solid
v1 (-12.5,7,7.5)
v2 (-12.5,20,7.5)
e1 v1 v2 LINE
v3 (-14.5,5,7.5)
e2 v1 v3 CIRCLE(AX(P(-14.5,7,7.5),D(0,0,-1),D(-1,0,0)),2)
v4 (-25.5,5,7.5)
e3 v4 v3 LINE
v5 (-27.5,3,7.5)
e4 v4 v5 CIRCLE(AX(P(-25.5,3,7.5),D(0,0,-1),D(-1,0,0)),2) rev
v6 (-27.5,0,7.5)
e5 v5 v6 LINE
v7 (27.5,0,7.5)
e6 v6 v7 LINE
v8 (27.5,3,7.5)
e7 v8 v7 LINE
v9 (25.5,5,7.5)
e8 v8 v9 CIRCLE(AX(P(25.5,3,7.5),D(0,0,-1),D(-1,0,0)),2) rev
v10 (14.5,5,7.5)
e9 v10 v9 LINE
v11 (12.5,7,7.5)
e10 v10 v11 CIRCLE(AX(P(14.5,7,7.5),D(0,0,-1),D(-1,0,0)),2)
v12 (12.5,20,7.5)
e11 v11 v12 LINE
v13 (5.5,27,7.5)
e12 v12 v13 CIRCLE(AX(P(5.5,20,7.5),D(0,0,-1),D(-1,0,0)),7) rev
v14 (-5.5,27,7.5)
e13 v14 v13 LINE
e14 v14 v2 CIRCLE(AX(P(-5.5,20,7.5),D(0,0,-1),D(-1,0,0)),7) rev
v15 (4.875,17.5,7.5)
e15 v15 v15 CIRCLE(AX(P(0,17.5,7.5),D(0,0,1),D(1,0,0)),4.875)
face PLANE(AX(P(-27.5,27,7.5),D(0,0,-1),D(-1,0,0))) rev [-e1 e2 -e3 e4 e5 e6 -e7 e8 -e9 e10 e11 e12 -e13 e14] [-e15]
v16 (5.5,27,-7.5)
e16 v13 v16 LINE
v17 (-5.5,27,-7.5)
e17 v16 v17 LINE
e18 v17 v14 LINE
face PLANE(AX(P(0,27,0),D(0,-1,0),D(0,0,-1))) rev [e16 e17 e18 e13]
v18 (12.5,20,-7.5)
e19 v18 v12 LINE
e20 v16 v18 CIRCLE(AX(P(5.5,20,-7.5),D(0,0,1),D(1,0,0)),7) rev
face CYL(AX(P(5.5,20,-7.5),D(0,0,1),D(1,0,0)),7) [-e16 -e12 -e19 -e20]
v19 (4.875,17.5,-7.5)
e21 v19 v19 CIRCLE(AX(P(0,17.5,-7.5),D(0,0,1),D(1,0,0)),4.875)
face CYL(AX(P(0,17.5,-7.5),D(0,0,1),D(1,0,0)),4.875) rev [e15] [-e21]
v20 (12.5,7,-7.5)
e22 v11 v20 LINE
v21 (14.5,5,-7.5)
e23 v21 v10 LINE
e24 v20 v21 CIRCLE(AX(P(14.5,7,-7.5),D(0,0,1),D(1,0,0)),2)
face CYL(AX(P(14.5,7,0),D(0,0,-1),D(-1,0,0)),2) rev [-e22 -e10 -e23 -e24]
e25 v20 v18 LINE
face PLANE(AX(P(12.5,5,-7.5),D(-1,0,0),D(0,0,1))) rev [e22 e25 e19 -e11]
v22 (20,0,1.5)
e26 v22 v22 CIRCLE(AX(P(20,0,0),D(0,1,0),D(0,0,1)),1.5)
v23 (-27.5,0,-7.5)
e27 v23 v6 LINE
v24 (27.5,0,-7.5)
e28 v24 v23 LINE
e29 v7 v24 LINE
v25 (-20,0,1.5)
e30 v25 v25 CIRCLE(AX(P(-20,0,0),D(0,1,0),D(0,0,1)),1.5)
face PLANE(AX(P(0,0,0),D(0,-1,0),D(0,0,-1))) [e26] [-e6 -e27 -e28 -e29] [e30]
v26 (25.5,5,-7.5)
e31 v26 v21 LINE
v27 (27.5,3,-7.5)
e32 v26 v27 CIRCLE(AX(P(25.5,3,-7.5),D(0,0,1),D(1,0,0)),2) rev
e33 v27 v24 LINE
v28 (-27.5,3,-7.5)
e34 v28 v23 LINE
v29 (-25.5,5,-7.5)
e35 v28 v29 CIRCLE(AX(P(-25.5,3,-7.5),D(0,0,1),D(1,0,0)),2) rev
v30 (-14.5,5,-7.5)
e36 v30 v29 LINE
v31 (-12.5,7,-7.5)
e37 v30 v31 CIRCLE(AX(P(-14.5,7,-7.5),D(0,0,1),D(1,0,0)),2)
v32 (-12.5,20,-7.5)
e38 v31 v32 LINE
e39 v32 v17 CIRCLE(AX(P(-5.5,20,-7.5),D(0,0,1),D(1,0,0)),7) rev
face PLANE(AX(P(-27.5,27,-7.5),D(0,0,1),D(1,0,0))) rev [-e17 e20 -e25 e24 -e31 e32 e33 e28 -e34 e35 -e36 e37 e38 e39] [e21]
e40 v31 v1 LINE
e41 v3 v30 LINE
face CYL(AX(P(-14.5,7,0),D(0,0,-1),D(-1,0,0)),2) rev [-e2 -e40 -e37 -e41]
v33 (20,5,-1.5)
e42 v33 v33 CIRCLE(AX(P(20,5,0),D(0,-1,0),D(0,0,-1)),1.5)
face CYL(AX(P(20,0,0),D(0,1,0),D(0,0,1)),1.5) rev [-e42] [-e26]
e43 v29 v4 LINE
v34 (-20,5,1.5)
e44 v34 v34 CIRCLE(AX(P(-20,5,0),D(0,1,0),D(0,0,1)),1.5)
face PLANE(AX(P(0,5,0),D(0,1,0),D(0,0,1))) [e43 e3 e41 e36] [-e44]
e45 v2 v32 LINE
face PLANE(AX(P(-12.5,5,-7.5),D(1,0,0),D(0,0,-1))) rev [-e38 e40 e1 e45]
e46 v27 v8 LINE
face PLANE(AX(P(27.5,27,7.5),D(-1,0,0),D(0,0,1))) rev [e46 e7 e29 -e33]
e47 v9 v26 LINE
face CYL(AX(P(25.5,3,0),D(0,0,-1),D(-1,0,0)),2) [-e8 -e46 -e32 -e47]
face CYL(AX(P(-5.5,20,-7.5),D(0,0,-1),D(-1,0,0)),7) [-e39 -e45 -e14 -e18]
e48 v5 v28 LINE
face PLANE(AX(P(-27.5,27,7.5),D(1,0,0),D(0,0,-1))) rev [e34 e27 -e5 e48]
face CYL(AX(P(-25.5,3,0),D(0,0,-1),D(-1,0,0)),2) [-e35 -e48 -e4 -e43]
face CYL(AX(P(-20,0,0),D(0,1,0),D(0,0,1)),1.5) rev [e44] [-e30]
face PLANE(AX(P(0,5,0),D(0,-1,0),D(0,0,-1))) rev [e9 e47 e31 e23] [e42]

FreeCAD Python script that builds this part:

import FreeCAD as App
import Part
import Sketcher

V = App.Vector


def edges_at(feature, points):
    """Names of the edges that pass closest to the given points."""
    edges = feature.Shape.Edges
    near = lambda p: min(range(len(edges)), key=lambda i: edges[i].distToShape(Part.Vertex(*p))[0])
    return sorted({f"Edge{near(p) + 1}" for p in points})

doc = App.newDocument("Part")
params = doc.addObject("Spreadsheet::Sheet", "Params")
for row, (alias, value) in enumerate([
    ("sketch1_width", "55 mm"),
    ("sketch1_height", "15 mm"),
    ("pad1_length", "27 mm"),
    ("sketch2_diameter", "9.75 mm"),
    ("sketch3_width", "15 mm"),
    ("pocket2_length", "22 mm"),
    ("sketch4_diameter", "3 mm"),
    ("fillet_radius", "2 mm"),
    ("fillet2_radius", "7 mm"),
], start=1):
    params.set(f"A{row}", alias)
    params.set(f"B{row}", "=" + value)
    params.setAlias(f"B{row}", alias)

body = doc.addObject("PartDesign::Body", "Body")

# Sketch on XZ plane
sketch1 = body.newObject("Sketcher::SketchObject", "Sketch")
sketch1.AttachmentSupport = (doc.getObject("XZ_Plane"), [""])
sketch1.MapMode = "FlatFace"
sketch1.addGeometry(Part.LineSegment(V(-28, -8, 0), V(-28, 8, 0)), False)
sketch1.addGeometry(Part.LineSegment(V(-28, 8, 0), V(28, 8, 0)), False)
sketch1.addGeometry(Part.LineSegment(V(28, 8, 0), V(28, -8, 0)), False)
sketch1.addGeometry(Part.LineSegment(V(28, -8, 0), V(-28, -8, 0)), False)
sketch1.addConstraint(Sketcher.Constraint("Coincident", 0, 2, 1, 1))
sketch1.addConstraint(Sketcher.Constraint("Coincident", 1, 2, 2, 1))
sketch1.addConstraint(Sketcher.Constraint("Coincident", 2, 2, 3, 1))
sketch1.addConstraint(Sketcher.Constraint("Coincident", 3, 2, 0, 1))
sketch1.addConstraint(Sketcher.Constraint("Vertical", 0))
sketch1.addConstraint(Sketcher.Constraint("Horizontal", 1))
sketch1.addConstraint(Sketcher.Constraint("Vertical", 2))
sketch1.addConstraint(Sketcher.Constraint("Horizontal", 3))
sketch1.addConstraint(Sketcher.Constraint("Symmetric", 0, 2, 2, 2, -1, 1))
sketch1.addConstraint(Sketcher.Constraint("DistanceX", 1, 1, 1, 2, 55.0))
sketch1.addConstraint(Sketcher.Constraint("DistanceY", 0, 1, 0, 2, 15.0))
sketch1.setExpression("Constraints[9]", "Params.sketch1_width")
sketch1.setExpression("Constraints[10]", "Params.sketch1_height")
pad1 = body.newObject("PartDesign::Pad", "Pad")
pad1.Profile = sketch1
pad1.setExpression("Length", "Params.pad1_length")
pad1.Reversed = True

# Sketch on XY plane
sketch2 = body.newObject("Sketcher::SketchObject", "Sketch001")
sketch2.AttachmentSupport = (doc.getObject("XY_Plane"), [""])
sketch2.MapMode = "FlatFace"
sketch2.AttachmentOffset = App.Placement(V(0, 0, 7.5), App.Rotation())
sketch2.addGeometry(Part.Circle(V(0, 17.5, 0), V(0, 0, 1), 4.9), False)
sketch2.addConstraint(Sketcher.Constraint("PointOnObject", 0, 3, -2))
sketch2.addConstraint(Sketcher.Constraint("Diameter", 0, 9.75))
sketch2.addConstraint(Sketcher.Constraint("DistanceY", -1, 1, 0, 3, 17.5))
sketch2.setExpression("Constraints[1]", "Params.sketch2_diameter")
pocket1 = body.newObject("PartDesign::Pocket", "Pocket")
pocket1.Profile = sketch2
pocket1.Type = "ThroughAll"
pocket1.Midplane = True

# Sketch on XZ plane
sketch3 = body.newObject("Sketcher::SketchObject", "Sketch002")
sketch3.AttachmentSupport = (doc.getObject("XZ_Plane"), [""])
sketch3.MapMode = "FlatFace"
sketch3.AttachmentOffset = App.Placement(V(0, 0, -27), App.Rotation())
sketch3.addGeometry(Part.LineSegment(V(-28, -8, 0), V(-28, 8, 0)), False)
sketch3.addGeometry(Part.LineSegment(V(-28, 8, 0), V(-12, 8, 0)), False)
sketch3.addGeometry(Part.LineSegment(V(-12, 8, 0), V(-12, -8, 0)), False)
sketch3.addGeometry(Part.LineSegment(V(-12, -8, 0), V(-28, -8, 0)), False)
sketch3.addGeometry(Part.LineSegment(V(12, -8, 0), V(12, 8, 0)), False)
sketch3.addGeometry(Part.LineSegment(V(12, 8, 0), V(28, 8, 0)), False)
sketch3.addGeometry(Part.LineSegment(V(28, 8, 0), V(28, -8, 0)), False)
sketch3.addGeometry(Part.LineSegment(V(28, -8, 0), V(12, -8, 0)), False)
sketch3.addConstraint(Sketcher.Constraint("Coincident", 0, 2, 1, 1))
sketch3.addConstraint(Sketcher.Constraint("Coincident", 1, 2, 2, 1))
sketch3.addConstraint(Sketcher.Constraint("Coincident", 2, 2, 3, 1))
sketch3.addConstraint(Sketcher.Constraint("Coincident", 3, 2, 0, 1))
sketch3.addConstraint(Sketcher.Constraint("Coincident", 4, 2, 5, 1))
sketch3.addConstraint(Sketcher.Constraint("Coincident", 5, 2, 6, 1))
sketch3.addConstraint(Sketcher.Constraint("Coincident", 6, 2, 7, 1))
sketch3.addConstraint(Sketcher.Constraint("Coincident", 7, 2, 4, 1))
sketch3.addConstraint(Sketcher.Constraint("Vertical", 0))
sketch3.addConstraint(Sketcher.Constraint("Horizontal", 1))
sketch3.addConstraint(Sketcher.Constraint("Vertical", 2))
sketch3.addConstraint(Sketcher.Constraint("Horizontal", 3))
sketch3.addConstraint(Sketcher.Constraint("Vertical", 4))
sketch3.addConstraint(Sketcher.Constraint("Horizontal", 5))
sketch3.addConstraint(Sketcher.Constraint("Vertical", 6))
sketch3.addConstraint(Sketcher.Constraint("Horizontal", 7))
sketch3.addConstraint(Sketcher.Constraint("Symmetric", 2, 2, 4, 2, -1, 1))
sketch3.addConstraint(Sketcher.Constraint("Symmetric", 0, 2, 6, 2, -1, 1))
sketch3.addConstraint(Sketcher.Constraint("Horizontal", 1, 2, 4, 2))
sketch3.addConstraint(Sketcher.Constraint("Equal", 7, 0))
sketch3.addConstraint(Sketcher.Constraint("DistanceX", 1, 1, 1, 2, 15.0))
sketch3.addConstraint(Sketcher.Constraint("DistanceX", 1, 2, 4, 2, 25.0))
sketch3.setExpression("Constraints[20]", "Params.sketch3_width")
pocket2 = body.newObject("PartDesign::Pocket", "Pocket001")
pocket2.Profile = sketch3
pocket2.setExpression("Length", "Params.pocket2_length")
pocket2.Reversed = True

# Sketch on XZ plane
sketch4 = body.newObject("Sketcher::SketchObject", "Sketch003")
sketch4.AttachmentSupport = (doc.getObject("XZ_Plane"), [""])
sketch4.MapMode = "FlatFace"
sketch4.AttachmentOffset = App.Placement(V(0, 0, -5), App.Rotation())
sketch4.addGeometry(Part.Circle(V(-20, 0, 0), V(0, 0, 1), 1.5), False)
sketch4.addGeometry(Part.Circle(V(20, 0, 0), V(0, 0, 1), 1.5), False)
sketch4.addConstraint(Sketcher.Constraint("Equal", 0, 1))
sketch4.addConstraint(Sketcher.Constraint("Symmetric", 0, 3, 1, 3, -1, 1))
sketch4.addConstraint(Sketcher.Constraint("PointOnObject", 0, 3, -1))
sketch4.addConstraint(Sketcher.Constraint("Diameter", 0, 3.0))
sketch4.addConstraint(Sketcher.Constraint("DistanceX", 0, 3, -1, 1, 20.0))
sketch4.setExpression("Constraints[3]", "Params.sketch4_diameter")
pocket3 = body.newObject("PartDesign::Pocket", "Pocket002")
pocket3.Profile = sketch4
pocket3.Type = "ThroughAll"
pocket3.Midplane = True
doc.recompute()

fillet = body.newObject("PartDesign::Fillet", "Fillet")
fillet.Base = (pocket3, edges_at(pocket3, [
    (-27.5, 5, 0),
    (-12.5, 5, 0),
    (27.5, 5, 0),
    (12.5, 5, 0),
]))
fillet.setExpression("Radius", "Params.fillet_radius")
doc.recompute()

fillet2 = body.newObject("PartDesign::Fillet", "Fillet001")
fillet2.Base = (fillet, edges_at(fillet, [(-12.5, 27, 0), (12.5, 27, 0)]))
fillet2.setExpression("Radius", "Params.fillet2_radius")

doc.recompute()
